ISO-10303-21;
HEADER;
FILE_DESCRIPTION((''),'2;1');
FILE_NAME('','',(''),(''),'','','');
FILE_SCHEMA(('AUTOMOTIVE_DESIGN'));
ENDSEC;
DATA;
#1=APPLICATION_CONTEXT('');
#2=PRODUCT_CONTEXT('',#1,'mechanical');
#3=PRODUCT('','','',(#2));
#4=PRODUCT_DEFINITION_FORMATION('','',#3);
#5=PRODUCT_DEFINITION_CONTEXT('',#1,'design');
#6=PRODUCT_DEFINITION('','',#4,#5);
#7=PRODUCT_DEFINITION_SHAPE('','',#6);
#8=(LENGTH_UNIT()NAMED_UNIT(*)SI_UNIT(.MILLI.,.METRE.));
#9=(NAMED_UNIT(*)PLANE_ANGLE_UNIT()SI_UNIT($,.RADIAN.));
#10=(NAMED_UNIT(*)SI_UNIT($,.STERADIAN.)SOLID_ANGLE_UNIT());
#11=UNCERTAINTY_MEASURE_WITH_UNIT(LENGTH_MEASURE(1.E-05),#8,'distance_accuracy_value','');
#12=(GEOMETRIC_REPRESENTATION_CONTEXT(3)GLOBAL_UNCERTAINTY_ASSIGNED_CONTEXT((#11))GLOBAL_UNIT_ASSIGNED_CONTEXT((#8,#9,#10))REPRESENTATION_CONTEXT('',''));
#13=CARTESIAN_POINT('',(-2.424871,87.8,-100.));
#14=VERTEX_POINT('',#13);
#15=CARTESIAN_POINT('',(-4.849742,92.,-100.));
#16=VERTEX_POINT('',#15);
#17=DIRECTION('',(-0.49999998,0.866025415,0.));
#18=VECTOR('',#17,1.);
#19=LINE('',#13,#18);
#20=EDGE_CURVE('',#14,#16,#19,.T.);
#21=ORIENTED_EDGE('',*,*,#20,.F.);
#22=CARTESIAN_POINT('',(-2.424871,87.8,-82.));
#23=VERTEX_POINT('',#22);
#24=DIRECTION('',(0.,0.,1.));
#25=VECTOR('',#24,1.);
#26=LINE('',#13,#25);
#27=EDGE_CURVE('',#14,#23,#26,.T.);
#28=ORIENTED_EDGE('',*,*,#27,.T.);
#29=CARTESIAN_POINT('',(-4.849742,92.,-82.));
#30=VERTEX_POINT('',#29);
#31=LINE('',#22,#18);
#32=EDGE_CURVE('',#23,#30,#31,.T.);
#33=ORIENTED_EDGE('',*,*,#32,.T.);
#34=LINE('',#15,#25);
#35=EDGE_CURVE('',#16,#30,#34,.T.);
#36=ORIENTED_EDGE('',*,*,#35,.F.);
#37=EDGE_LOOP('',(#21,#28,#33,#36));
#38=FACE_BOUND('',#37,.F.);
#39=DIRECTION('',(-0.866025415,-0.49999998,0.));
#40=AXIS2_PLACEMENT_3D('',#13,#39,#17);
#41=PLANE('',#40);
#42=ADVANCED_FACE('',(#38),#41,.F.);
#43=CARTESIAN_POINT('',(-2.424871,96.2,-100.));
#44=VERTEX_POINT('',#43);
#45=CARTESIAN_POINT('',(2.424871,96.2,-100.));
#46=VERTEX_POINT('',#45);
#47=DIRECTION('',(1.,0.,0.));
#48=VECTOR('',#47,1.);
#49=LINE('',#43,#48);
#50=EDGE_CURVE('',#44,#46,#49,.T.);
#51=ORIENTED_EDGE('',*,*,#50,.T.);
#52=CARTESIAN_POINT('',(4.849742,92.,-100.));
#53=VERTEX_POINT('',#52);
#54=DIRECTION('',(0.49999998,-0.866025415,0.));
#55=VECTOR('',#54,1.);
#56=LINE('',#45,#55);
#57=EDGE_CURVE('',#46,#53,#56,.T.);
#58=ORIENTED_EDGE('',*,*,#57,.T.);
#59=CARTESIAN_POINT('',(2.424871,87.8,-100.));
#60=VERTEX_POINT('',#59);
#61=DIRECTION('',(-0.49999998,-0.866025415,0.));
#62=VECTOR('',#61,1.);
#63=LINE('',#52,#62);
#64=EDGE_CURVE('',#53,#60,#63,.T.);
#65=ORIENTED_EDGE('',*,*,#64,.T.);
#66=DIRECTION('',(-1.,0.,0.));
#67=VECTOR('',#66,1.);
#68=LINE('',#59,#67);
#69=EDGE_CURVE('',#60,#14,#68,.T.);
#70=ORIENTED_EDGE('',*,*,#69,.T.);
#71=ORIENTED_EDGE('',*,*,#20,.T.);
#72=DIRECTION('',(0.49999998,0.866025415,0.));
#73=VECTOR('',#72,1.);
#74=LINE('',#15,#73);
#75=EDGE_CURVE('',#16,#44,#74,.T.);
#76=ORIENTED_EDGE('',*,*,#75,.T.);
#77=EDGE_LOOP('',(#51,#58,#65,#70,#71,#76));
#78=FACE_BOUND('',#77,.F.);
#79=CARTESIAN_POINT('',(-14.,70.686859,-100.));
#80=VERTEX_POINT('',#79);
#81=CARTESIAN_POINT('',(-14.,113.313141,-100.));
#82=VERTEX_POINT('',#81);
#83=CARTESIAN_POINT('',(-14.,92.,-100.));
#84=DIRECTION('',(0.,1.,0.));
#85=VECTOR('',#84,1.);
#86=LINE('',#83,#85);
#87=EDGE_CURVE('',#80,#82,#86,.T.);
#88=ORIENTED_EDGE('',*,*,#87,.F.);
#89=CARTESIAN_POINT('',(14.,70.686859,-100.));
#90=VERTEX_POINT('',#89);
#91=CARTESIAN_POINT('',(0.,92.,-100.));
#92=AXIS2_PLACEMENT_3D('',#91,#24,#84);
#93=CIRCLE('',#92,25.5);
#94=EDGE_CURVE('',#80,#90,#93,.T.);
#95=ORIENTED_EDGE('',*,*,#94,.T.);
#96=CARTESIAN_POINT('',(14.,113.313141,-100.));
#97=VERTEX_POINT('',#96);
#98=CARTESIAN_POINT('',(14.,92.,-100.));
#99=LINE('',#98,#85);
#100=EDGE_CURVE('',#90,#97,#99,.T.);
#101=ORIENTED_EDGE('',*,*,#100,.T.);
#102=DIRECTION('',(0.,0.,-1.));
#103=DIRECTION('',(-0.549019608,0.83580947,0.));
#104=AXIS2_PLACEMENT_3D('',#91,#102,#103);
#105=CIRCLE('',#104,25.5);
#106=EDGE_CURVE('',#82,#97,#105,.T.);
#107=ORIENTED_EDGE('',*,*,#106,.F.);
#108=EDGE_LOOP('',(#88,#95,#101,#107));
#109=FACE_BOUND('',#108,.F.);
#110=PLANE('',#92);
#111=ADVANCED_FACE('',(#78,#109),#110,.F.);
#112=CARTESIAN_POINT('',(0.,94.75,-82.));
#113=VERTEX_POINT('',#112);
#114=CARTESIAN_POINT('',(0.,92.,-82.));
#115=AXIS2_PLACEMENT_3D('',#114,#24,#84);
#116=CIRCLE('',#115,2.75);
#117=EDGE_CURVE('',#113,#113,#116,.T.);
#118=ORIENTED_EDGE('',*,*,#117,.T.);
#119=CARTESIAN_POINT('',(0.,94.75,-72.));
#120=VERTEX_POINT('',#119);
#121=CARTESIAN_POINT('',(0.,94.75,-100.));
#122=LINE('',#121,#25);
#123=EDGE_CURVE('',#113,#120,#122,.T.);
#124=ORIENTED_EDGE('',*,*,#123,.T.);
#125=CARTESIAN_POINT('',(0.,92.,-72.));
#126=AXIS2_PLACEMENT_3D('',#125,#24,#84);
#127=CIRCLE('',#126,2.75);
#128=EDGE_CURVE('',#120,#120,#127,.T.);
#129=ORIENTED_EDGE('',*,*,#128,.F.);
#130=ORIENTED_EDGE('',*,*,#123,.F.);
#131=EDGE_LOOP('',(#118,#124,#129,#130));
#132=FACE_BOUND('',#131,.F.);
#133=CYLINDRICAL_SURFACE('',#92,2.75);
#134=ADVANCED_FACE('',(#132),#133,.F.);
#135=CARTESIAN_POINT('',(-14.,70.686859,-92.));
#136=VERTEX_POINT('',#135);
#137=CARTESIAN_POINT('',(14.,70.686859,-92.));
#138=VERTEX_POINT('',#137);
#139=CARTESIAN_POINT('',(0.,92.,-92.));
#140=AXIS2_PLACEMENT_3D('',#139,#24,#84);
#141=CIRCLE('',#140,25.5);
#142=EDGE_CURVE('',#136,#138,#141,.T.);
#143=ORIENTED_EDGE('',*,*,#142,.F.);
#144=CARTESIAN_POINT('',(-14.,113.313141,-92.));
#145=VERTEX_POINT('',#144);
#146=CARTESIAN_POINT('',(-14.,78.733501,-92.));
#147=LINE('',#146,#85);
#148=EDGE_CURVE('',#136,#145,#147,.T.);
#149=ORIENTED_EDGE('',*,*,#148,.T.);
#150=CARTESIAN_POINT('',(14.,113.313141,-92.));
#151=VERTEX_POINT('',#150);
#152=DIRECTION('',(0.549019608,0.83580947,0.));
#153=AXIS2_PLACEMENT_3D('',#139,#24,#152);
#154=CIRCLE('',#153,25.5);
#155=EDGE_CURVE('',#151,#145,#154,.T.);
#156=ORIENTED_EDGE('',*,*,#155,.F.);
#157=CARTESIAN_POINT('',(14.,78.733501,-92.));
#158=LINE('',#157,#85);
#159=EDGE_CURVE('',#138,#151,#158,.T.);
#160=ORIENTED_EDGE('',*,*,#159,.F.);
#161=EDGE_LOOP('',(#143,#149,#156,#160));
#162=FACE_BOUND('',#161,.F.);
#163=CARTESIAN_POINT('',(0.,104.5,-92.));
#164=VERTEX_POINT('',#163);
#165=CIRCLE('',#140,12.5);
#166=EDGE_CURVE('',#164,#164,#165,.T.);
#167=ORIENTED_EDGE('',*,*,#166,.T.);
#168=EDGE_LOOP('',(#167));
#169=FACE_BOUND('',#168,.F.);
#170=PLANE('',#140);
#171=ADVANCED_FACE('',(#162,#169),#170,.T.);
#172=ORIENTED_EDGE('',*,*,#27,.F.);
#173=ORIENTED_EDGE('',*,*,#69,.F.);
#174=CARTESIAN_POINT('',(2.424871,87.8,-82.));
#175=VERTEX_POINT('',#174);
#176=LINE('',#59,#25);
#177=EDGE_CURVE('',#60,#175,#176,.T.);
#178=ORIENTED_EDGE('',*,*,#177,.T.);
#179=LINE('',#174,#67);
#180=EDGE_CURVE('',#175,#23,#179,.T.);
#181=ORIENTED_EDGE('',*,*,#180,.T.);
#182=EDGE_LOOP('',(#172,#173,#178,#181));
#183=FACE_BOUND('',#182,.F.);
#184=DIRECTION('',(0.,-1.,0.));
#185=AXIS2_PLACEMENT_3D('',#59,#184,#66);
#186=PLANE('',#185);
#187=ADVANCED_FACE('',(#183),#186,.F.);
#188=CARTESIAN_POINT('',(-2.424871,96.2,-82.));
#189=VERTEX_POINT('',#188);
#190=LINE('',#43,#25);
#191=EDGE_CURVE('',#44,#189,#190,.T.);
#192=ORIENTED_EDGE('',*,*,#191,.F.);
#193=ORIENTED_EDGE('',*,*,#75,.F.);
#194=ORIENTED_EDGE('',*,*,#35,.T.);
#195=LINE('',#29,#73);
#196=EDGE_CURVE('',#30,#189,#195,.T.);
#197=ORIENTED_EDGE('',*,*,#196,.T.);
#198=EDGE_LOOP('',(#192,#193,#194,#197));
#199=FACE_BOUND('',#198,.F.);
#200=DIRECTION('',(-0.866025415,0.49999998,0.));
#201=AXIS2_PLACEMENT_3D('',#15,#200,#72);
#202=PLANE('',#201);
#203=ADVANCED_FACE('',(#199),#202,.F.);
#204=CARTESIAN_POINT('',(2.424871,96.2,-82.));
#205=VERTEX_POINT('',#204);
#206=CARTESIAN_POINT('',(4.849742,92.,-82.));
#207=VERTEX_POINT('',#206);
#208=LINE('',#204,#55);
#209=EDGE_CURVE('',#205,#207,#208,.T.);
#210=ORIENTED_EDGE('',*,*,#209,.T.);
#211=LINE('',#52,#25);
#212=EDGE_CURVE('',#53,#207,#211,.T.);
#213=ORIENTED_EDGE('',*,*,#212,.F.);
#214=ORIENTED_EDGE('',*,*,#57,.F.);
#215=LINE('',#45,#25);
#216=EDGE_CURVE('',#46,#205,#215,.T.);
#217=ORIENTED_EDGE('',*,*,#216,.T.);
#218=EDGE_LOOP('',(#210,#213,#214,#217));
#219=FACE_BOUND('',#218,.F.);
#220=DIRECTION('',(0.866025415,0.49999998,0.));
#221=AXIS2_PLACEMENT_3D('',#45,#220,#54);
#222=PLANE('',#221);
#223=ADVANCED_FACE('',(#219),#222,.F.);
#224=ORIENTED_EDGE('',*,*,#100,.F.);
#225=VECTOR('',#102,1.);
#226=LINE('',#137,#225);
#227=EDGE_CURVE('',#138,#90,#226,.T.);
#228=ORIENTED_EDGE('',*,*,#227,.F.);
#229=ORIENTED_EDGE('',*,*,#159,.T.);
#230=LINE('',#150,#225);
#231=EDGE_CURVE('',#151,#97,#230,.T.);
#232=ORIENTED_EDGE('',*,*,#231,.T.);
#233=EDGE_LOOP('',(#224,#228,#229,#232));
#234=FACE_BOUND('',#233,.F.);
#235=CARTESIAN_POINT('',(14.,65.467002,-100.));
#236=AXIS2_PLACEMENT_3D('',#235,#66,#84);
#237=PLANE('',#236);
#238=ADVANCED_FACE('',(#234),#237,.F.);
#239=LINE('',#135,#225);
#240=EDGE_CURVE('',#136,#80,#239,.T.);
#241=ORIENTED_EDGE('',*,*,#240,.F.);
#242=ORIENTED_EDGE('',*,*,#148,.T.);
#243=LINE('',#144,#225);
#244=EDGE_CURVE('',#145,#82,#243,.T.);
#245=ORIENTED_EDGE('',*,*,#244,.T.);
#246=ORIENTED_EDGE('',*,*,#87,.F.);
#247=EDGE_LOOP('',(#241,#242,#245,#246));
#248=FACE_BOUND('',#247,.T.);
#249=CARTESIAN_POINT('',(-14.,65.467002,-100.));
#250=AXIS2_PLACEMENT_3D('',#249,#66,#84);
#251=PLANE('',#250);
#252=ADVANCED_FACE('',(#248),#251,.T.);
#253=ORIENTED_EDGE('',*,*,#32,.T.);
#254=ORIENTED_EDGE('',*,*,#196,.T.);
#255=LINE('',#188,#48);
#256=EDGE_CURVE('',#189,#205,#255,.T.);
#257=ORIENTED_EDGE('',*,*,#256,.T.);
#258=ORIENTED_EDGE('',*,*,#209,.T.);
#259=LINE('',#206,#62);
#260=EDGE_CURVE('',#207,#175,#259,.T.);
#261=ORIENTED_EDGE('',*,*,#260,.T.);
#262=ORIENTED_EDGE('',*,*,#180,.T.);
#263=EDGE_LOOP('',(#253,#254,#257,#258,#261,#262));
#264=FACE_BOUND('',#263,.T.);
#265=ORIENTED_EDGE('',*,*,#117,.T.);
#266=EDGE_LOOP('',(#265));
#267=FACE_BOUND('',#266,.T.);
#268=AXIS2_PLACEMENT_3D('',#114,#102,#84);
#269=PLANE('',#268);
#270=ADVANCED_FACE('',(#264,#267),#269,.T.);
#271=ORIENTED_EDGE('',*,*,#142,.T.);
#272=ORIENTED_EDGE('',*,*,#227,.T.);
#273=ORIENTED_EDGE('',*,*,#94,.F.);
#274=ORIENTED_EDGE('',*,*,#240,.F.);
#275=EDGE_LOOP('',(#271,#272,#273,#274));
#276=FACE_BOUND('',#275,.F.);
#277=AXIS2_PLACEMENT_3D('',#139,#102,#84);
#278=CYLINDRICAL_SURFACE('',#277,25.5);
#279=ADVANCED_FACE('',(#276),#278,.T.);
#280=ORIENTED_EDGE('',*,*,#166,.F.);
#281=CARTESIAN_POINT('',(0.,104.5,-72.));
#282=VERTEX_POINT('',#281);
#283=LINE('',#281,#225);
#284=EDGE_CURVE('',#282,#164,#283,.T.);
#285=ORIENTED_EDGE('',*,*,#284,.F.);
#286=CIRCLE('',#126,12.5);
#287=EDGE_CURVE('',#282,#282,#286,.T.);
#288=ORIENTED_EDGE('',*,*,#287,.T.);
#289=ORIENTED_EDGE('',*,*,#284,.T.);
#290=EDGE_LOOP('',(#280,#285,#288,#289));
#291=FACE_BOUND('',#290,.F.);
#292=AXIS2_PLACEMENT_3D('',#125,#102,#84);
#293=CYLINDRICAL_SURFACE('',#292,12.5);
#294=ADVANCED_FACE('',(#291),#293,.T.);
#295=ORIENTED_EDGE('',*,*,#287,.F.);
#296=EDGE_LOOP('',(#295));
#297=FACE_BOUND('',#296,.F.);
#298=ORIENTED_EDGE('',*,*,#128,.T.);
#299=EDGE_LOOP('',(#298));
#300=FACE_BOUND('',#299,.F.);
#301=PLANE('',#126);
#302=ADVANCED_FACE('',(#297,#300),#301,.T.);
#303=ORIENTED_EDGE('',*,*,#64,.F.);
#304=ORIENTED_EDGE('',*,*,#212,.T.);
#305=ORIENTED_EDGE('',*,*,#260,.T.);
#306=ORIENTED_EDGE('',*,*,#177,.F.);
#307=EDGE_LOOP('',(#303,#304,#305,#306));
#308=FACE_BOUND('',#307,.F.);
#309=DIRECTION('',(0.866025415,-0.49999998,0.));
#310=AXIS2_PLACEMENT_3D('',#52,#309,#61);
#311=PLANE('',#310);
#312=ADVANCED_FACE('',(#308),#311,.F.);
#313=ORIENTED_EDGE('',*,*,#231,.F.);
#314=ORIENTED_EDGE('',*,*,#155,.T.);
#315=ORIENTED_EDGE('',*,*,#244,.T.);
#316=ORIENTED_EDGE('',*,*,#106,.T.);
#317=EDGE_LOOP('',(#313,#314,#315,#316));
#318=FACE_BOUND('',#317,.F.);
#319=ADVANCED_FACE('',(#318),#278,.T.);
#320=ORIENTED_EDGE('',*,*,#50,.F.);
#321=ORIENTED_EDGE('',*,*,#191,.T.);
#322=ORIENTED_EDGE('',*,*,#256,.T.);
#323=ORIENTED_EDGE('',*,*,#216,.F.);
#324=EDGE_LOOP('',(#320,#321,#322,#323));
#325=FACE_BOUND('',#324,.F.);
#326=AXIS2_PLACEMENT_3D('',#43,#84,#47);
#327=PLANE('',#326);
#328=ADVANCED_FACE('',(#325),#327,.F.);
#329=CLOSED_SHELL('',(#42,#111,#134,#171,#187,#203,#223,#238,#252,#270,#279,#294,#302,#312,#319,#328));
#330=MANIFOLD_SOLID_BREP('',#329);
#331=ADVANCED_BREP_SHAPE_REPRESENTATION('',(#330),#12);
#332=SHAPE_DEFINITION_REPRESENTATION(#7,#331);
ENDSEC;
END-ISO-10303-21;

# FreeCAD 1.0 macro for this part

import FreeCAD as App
import Part
import Sketcher
from FreeCAD import Vector
Q = App.Units.Quantity


def add_polygon(sketch, points):
    """Adds a closed chain of lines whose ends are joined by coincident constraints."""
    first, n = sketch.GeometryCount, len(points)
    for a, b in zip(points, points[1:] + points[:1]):
        sketch.addGeometry(Part.LineSegment(App.Vector(*a, 0), App.Vector(*b, 0)), False)
    for i in range(n):
        sketch.addConstraint(Sketcher.Constraint("Coincident", first + i, 2, first + (i + 1) % n, 1))

doc = App.newDocument("Part")
body = doc.addObject("PartDesign::Body", "Body")

# Sketch on YZ plane
sketch1 = body.newObject("Sketcher::SketchObject", "Sketch")
sketch1.AttachmentSupport = (doc.getObject("YZ_Plane"), [""])
sketch1.MapMode = "FlatFace"
add_polygon(sketch1, [(12.5, 0), (2.75, 0), (2.75, -28), (25.5, -28), (25.5, -20), (12.5, -20)])  # lines 0-5
sketch1.addConstraint(Sketcher.Constraint("Horizontal", 0))
sketch1.addConstraint(Sketcher.Constraint("Vertical", 1))
sketch1.addConstraint(Sketcher.Constraint("Horizontal", 2))
sketch1.addConstraint(Sketcher.Constraint("Vertical", 3))
sketch1.addConstraint(Sketcher.Constraint("Horizontal", 4))
sketch1.addConstraint(Sketcher.Constraint("Vertical", 5))
sketch1.addConstraint(Sketcher.Constraint("PointOnObject", 0, 2, -1))
sketch1.addConstraint(Sketcher.Constraint("DistanceX", 4, 2, 4, 1, 13.0))
sketch1.addConstraint(Sketcher.Constraint("DistanceY", 1, 2, 1, 1, 28.0))
sketch1.addConstraint(Sketcher.Constraint("DistanceY", 3, 1, 3, 2, 8.0))
sketch1.addConstraint(Sketcher.Constraint("DistanceX", 0, 2, 0, 1, 9.75))
sketch1.addConstraint(Sketcher.Constraint("DistanceX", -1, 1, 2, 2, 25.5))
revolution = body.newObject("PartDesign::Revolution", "Revolution")
revolution.Profile = sketch1
revolution.ReferenceAxis = (sketch1, ["V_Axis"])
revolution.Angle = 360

# Sketch on XY plane
sketch2 = body.newObject("Sketcher::SketchObject", "Sketch001")
sketch2.AttachmentSupport = (doc.getObject("XY_Plane"), [""])
sketch2.MapMode = "FlatFace"
sketch2.AttachmentOffset = App.Placement(Vector(0, 0, -28), App.Rotation())
add_polygon(sketch2, [(32.5, -32.5), (-32.5, -32.5), (-32.5, 32.5), (32.5, 32.5)])  # lines 0-3
add_polygon(sketch2, [(-14, 26.532998), (-14, -26.532998), (14, -26.532998), (14, 26.532998)])  # lines 4-7
sketch2.addConstraint(Sketcher.Constraint("Horizontal", 0))
sketch2.addConstraint(Sketcher.Constraint("Vertical", 1))
sketch2.addConstraint(Sketcher.Constraint("Horizontal", 2))
sketch2.addConstraint(Sketcher.Constraint("Vertical", 3))
sketch2.addConstraint(Sketcher.Constraint("Vertical", 4))
sketch2.addConstraint(Sketcher.Constraint("Horizontal", 5))
sketch2.addConstraint(Sketcher.Constraint("Vertical", 6))
sketch2.addConstraint(Sketcher.Constraint("Horizontal", 7))
sketch2.addConstraint(Sketcher.Constraint("Symmetric", 0, 2, 2, 2, -1, 1))
sketch2.addConstraint(Sketcher.Constraint("Symmetric", 4, 2, 6, 2, -1, 1))
sketch2.addConstraint(Sketcher.Constraint("Equal", 2, 1))
sketch2.addConstraint(Sketcher.Constraint("DistanceX", 0, 2, 0, 1, 65.0))
sketch2.addConstraint(Sketcher.Constraint("DistanceX", 5, 1, 5, 2, 28.0))
sketch2.addConstraint(Sketcher.Constraint("DistanceY", 4, 2, 4, 1, 53.065996))
pocket1 = body.newObject("PartDesign::Pocket", "Pocket")
pocket1.Profile = sketch2
pocket1.Type = "ThroughAll"
pocket1.Reversed = True

# Sketch on XY plane
sketch3 = body.newObject("Sketcher::SketchObject", "Sketch002")
sketch3.AttachmentSupport = (doc.getObject("XY_Plane"), [""])
sketch3.MapMode = "FlatFace"
sketch3.AttachmentOffset = App.Placement(Vector(0, 0, -28), App.Rotation())
add_polygon(sketch3, [(2.424871, 4.2), (4.849742, 0), (2.424871, -4.2), (-2.424871, -4.2), (-4.849742, 0), (-2.424871, 4.2)])  # lines 0-5
sketch3.addConstraint(Sketcher.Constraint("Horizontal", 2))
sketch3.addConstraint(Sketcher.Constraint("Horizontal", 5))
sketch3.addConstraint(Sketcher.Constraint("Symmetric", 0, 2, 3, 2, -1, 1))
sketch3.addConstraint(Sketcher.Constraint("Symmetric", 1, 2, 4, 2, -1, 1))
sketch3.addConstraint(Sketcher.Constraint("PointOnObject", 0, 2, -1))
sketch3.addConstraint(Sketcher.Constraint("Parallel", 0, 3))
sketch3.addConstraint(Sketcher.Constraint("Vertical", 2, 2, 4, 2))
sketch3.addConstraint(Sketcher.Constraint("Angle", 0, Q("-60.000001 deg")))
sketch3.addConstraint(Sketcher.Constraint("DistanceY", 1, 2, -1, 1, 4.2))
sketch3.addConstraint(Sketcher.Constraint("DistanceX", 2, 2, 2, 1, 4.849742))
pocket2 = body.newObject("PartDesign::Pocket", "Pocket001")
pocket2.Profile = sketch3
pocket2.Length = 18
pocket2.Reversed = True
body2 = doc.addObject("PartDesign::Body", "Body001")
doc.recompute()

body.Placement = App.Placement(Vector(0, 92, -72), App.Rotation(Vector(0, 0, 1), 0))
boolean = body2.newObject("PartDesign::Boolean", "Boolean")
boolean.Type = "Fuse"
boolean.addObjects([body])

doc.recompute()
